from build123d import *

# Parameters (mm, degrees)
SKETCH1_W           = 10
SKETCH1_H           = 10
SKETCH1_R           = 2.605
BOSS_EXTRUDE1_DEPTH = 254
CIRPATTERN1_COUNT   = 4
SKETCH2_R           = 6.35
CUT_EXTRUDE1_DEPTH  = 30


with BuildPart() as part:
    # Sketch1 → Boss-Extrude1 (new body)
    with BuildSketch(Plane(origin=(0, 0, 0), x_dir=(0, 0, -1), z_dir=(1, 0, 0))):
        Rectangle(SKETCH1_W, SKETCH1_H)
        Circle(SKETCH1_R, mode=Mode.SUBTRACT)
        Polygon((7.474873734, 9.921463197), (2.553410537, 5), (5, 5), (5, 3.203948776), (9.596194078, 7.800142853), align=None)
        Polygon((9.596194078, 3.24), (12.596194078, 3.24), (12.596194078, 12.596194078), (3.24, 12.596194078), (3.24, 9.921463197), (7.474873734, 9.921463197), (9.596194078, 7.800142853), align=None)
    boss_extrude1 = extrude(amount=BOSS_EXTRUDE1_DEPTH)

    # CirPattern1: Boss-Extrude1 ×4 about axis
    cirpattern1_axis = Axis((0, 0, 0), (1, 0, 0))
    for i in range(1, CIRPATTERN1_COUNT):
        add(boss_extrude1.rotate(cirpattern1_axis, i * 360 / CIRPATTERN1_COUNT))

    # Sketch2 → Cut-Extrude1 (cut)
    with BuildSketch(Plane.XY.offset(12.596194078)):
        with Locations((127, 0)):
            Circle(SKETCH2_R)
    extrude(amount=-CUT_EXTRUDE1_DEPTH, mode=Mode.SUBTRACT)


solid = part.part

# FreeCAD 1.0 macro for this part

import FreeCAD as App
import Part
import Sketcher

V = App.Vector
Q = App.Units.Quantity


def add_polygon(sketch, points):
    """Adds a closed chain of lines whose ends are joined by coincident constraints."""
    first, n = sketch.GeometryCount, len(points)
    for a, b in zip(points, points[1:] + points[:1]):
        sketch.addGeometry(Part.LineSegment(App.Vector(*a, 0), App.Vector(*b, 0)), False)
    for i in range(n):
        sketch.addConstraint(Sketcher.Constraint("Coincident", first + i, 2, first + (i + 1) % n, 1))

doc = App.newDocument("Part")
body = doc.addObject("PartDesign::Body", "Body")

# Sketch on YZ plane
sketch1 = doc.addObject("Sketcher::SketchObject", "Sketch")
body.addObject(sketch1)
sketch1.AttachmentSupport = (doc.YZ_Plane, [""])
sketch1.MapMode = "FlatFace"
add_polygon(sketch1, [(5, 5), (-5, 5), (-5, -5), (3.2, -5), (7.8, -9.6), (3.2, -9.6), (3.2, -12.6), (12.6, -12.6), (12.6, -3.2), (9.9, -3.2), (9.9, -7.5), (5, -2.6)])  # lines 0-11
sketch1.addGeometry(Part.Circle(V(0, 0, 0), V(0, 0, 1), 2.6), False)  # 12
sketch1.addConstraint([
    Sketcher.Constraint("Horizontal", 0),
    Sketcher.Constraint("Vertical", 1),
    Sketcher.Constraint("Horizontal", 2),
    Sketcher.Constraint("Horizontal", 4),
    Sketcher.Constraint("Vertical", 5),
    Sketcher.Constraint("Horizontal", 6),
    Sketcher.Constraint("Vertical", 7),
    Sketcher.Constraint("Horizontal", 8),
    Sketcher.Constraint("Vertical", 9),
    Sketcher.Constraint("Vertical", 11),
    Sketcher.Constraint("Coincident", 12, 3, -1, 1),
    Sketcher.Constraint("Symmetric", 1, 2, 11, 2, -1, 1),
    Sketcher.Constraint("Parallel", 3, 10),
    Sketcher.Constraint("Equal", 0, 1),
    Sketcher.Constraint("Equal", 6, 7),
    Sketcher.Constraint("Diameter", 12, Q("5.21 mm")),
    Sketcher.Constraint("DistanceX", 0, 2, 0, 1, Q("10 mm")),
    Sketcher.Constraint("DistanceY", 5, 2, 5, 1, Q("3 mm")),
    Sketcher.Constraint("Angle", 3, Q("-45 deg")),
    Sketcher.Constraint("Distance", 3, Q("6.5 mm")),
    Sketcher.Constraint("Distance", 10, Q("6.96 mm")),
    Sketcher.Constraint("DistanceX", -1, 1, 4, 2, Q("3.24 mm")),
    Sketcher.Constraint("DistanceY", 7, 2, -1, 1, Q("3.24 mm")),
    Sketcher.Constraint("DistanceX", 2, 1, 2, 2, Q("8.203949 mm")),
    Sketcher.Constraint("DistanceY", 11, 1, 11, 2, Q("7.553411 mm")),
])
pad1 = doc.addObject("PartDesign::Pad", "Pad")
body.addObject(pad1)
pad1.Profile = sketch1
pad1.Length = 254
doc.recompute()

polarpattern = doc.addObject("PartDesign::PolarPattern", "PolarPattern")
body.addObject(polarpattern)
polarpattern.Originals = [pad1]
polarpattern.Axis = (doc.X_Axis, [""])
polarpattern.Angle = 360
polarpattern.Occurrences = 4
body.Tip = polarpattern

# Sketch on XY plane
sketch2 = doc.addObject("Sketcher::SketchObject", "Sketch001")
body.addObject(sketch2)
sketch2.AttachmentSupport = (doc.XY_Plane, [""])
sketch2.MapMode = "FlatFace"
sketch2.AttachmentOffset = App.Placement(V(0, 0, 12.596194), App.Rotation())
sketch2.addGeometry(Part.Circle(V(127, 0, 0), V(0, 0, 1), 6), False)
sketch2.addConstraint([
    Sketcher.Constraint("PointOnObject", 0, 3, -1),
    Sketcher.Constraint("Diameter", 0, Q("12.7 mm")),
    Sketcher.Constraint("DistanceX", -1, 1, 0, 3, Q("127 mm")),
])
pocket1 = doc.addObject("PartDesign::Pocket", "Pocket")
body.addObject(pocket1)
pocket1.Profile = sketch2
pocket1.Length = 30

doc.recompute()
